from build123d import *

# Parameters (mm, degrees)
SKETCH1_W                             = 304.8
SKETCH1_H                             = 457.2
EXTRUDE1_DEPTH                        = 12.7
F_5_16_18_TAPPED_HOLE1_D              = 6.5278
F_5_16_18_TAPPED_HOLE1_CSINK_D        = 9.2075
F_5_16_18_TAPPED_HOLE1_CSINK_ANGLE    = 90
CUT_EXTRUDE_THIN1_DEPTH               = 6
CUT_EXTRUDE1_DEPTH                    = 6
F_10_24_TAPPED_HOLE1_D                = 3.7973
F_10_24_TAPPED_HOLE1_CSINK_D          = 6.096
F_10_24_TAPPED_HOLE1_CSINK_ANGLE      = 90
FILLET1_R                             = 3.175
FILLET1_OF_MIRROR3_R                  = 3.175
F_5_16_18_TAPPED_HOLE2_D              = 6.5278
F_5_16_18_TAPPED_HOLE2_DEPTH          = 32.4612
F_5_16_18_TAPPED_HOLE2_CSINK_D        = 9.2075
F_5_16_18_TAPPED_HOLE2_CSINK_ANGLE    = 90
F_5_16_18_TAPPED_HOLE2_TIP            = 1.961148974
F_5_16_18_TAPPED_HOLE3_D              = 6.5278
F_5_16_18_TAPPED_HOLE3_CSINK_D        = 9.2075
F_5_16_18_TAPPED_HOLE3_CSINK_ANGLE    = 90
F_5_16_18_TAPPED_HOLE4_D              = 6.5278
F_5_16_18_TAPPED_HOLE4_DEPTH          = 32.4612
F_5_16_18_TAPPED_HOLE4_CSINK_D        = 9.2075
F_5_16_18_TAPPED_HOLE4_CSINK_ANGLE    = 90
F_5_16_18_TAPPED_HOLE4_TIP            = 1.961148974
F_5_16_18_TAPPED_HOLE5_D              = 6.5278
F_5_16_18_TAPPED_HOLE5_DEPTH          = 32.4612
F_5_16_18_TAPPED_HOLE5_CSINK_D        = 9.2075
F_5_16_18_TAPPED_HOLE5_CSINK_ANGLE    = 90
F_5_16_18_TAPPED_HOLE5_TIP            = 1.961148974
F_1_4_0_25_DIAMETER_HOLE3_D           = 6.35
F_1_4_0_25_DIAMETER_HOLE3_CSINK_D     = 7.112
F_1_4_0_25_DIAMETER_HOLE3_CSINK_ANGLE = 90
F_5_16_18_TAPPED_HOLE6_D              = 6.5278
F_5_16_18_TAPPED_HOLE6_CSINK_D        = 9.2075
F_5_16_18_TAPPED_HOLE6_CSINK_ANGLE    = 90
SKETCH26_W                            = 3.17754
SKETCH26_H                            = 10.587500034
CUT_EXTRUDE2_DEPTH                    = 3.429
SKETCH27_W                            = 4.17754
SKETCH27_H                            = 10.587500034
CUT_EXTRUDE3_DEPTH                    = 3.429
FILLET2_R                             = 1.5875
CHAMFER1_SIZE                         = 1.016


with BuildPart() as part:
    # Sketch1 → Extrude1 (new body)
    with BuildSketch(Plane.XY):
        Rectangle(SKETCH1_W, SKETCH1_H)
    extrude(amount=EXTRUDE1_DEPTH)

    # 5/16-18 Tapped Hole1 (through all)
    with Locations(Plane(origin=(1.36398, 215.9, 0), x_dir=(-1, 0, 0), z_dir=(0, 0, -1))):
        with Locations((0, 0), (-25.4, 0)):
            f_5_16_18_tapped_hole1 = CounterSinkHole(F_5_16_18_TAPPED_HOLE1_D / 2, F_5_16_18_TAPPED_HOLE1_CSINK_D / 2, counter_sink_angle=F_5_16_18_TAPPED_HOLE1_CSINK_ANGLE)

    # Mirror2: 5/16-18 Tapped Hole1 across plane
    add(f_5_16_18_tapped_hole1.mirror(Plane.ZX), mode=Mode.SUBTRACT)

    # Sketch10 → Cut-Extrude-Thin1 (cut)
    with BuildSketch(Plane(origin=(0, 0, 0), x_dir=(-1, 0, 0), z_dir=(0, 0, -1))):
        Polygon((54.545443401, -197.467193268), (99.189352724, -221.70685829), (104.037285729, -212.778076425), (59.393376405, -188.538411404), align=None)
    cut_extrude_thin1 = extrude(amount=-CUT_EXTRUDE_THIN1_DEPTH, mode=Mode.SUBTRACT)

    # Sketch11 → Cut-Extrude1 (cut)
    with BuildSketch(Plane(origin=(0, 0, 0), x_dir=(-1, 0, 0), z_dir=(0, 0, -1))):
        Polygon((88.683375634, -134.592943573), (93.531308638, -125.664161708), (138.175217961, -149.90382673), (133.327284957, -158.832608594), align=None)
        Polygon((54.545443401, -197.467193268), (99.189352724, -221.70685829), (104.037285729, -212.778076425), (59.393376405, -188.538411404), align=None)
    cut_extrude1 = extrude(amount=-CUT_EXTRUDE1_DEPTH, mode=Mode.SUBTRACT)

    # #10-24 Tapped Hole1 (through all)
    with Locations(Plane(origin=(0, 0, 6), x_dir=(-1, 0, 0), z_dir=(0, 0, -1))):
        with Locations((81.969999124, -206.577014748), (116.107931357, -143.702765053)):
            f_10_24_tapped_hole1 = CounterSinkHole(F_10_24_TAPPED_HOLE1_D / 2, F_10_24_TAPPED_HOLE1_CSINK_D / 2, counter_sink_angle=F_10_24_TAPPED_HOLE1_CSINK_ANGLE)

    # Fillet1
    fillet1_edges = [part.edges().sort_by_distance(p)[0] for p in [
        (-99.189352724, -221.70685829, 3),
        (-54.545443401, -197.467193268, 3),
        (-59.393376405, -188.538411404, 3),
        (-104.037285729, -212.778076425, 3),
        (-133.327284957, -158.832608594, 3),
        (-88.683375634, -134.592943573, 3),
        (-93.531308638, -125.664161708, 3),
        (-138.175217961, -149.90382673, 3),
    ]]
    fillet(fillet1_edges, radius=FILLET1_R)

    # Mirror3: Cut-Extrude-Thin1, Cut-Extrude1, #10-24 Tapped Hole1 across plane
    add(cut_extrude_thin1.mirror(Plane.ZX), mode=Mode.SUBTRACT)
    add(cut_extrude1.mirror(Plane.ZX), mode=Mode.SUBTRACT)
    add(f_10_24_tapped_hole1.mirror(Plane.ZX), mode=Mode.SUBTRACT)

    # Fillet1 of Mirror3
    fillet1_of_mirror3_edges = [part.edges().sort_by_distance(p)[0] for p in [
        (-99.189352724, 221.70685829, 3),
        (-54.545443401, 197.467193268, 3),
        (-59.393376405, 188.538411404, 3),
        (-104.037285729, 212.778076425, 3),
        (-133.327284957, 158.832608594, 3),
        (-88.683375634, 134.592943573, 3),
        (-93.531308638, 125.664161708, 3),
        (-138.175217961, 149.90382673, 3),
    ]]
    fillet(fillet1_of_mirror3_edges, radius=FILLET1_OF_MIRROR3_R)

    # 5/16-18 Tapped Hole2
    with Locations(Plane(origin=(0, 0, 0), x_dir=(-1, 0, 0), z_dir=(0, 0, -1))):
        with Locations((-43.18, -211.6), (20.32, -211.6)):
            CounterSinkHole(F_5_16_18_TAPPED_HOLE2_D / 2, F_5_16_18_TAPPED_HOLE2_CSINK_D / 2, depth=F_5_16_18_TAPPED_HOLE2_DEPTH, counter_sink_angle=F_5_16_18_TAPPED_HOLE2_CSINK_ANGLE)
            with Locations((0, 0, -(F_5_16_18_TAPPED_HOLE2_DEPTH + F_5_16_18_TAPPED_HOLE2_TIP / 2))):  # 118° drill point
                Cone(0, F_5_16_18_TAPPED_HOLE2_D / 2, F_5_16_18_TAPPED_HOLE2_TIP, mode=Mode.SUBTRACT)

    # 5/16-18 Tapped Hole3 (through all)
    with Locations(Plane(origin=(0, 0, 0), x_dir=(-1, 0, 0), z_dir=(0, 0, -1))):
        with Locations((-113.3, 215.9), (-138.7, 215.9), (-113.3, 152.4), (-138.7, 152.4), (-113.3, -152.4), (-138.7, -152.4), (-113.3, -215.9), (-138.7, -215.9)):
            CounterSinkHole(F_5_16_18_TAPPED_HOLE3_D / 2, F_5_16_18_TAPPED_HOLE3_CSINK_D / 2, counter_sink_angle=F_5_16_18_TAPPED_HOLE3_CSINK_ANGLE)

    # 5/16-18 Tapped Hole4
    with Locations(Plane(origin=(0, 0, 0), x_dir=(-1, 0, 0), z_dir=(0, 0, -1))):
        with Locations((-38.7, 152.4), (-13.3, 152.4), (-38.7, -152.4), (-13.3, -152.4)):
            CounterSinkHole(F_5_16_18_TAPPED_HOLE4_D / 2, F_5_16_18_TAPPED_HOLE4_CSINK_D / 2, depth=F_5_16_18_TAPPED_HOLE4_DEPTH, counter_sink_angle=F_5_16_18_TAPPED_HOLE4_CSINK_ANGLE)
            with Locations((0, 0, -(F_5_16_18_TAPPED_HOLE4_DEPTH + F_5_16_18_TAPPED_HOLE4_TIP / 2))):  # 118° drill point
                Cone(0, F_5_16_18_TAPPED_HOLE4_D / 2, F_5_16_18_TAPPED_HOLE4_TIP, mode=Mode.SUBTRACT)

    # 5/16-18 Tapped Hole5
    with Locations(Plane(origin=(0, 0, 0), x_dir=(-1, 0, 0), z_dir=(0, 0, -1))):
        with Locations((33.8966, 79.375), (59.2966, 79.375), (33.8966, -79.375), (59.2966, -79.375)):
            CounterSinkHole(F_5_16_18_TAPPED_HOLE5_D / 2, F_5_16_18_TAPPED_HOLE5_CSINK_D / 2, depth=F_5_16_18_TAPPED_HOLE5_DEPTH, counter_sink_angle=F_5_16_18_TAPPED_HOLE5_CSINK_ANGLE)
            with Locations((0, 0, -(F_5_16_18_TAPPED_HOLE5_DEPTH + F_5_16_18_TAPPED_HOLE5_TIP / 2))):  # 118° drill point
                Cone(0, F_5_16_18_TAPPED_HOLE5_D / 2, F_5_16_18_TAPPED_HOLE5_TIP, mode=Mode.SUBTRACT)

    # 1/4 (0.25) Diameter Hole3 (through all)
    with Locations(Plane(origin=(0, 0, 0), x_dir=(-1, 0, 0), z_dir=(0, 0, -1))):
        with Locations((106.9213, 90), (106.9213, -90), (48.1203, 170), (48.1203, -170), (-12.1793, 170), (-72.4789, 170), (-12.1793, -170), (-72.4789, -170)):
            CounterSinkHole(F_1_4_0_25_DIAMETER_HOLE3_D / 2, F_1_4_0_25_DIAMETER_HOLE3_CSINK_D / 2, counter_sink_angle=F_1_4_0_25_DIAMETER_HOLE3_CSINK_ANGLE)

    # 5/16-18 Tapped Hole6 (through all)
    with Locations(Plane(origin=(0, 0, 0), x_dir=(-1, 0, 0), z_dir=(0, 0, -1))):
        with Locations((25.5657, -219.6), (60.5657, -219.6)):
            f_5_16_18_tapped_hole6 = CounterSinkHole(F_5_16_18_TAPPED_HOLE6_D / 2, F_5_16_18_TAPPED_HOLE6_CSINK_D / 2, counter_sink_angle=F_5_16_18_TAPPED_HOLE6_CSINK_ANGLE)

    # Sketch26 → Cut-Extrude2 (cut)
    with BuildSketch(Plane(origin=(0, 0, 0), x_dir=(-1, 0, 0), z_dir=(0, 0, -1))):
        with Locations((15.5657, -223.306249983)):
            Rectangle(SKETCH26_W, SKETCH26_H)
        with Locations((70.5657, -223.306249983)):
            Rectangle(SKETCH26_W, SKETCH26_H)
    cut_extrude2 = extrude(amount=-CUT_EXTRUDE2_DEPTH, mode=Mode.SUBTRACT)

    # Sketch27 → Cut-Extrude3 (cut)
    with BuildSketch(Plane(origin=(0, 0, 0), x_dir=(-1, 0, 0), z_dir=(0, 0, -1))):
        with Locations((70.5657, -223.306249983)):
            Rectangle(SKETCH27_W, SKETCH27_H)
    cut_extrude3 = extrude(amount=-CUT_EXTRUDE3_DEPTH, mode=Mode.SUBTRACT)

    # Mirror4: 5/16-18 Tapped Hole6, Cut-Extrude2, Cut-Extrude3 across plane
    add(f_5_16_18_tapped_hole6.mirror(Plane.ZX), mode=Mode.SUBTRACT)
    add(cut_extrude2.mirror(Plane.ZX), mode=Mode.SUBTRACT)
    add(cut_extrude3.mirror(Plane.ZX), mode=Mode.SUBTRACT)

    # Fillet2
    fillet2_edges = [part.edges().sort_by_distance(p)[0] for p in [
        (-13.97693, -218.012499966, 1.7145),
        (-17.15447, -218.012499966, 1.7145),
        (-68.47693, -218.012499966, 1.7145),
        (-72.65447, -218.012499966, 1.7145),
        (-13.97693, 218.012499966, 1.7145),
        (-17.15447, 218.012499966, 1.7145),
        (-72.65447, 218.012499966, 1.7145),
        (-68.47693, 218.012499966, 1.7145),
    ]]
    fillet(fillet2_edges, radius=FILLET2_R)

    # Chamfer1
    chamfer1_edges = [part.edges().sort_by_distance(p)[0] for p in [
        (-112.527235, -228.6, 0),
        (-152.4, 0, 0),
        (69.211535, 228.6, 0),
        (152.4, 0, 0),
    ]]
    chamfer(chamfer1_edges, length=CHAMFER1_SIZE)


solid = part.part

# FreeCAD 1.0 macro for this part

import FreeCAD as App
import Part
import Sketcher

V = App.Vector
Q = App.Units.Quantity


def edges_at(feature, points):
    """Names of the edges that pass closest to the given points."""
    edges = feature.Shape.Edges
    near = lambda p: min(range(len(edges)), key=lambda i: edges[i].distToShape(Part.Vertex(*p))[0])
    return sorted({f"Edge{near(p) + 1}" for p in points})


def add_polygon(sketch, points):
    """Adds a closed chain of lines whose ends are joined by coincident constraints."""
    first, n = sketch.GeometryCount, len(points)
    for a, b in zip(points, points[1:] + points[:1]):
        sketch.addGeometry(Part.LineSegment(App.Vector(*a, 0), App.Vector(*b, 0)), False)
    for i in range(n):
        sketch.addConstraint(Sketcher.Constraint("Coincident", first + i, 2, first + (i + 1) % n, 1))

doc = App.newDocument("Part")
body = doc.addObject("PartDesign::Body", "Body")

sketch1 = body.newObject("Sketcher::SketchObject", "Sketch")
sketch1.AttachmentSupport = (doc.getObject("XY_Plane"), [""])
sketch1.MapMode = "FlatFace"
add_polygon(sketch1, [(-152, 229), (-152, -229), (152, -229), (152, 229)])
sketch1.addConstraint([
    Sketcher.Constraint("Vertical", 0),
    Sketcher.Constraint("Horizontal", 1),
    Sketcher.Constraint("Vertical", 2),
    Sketcher.Constraint("Horizontal", 3),
    Sketcher.Constraint("Symmetric", 0, 2, 2, 2, -1, 1),
    Sketcher.Constraint("DistanceX", 1, 1, 1, 2, Q("12 in")),
    Sketcher.Constraint("DistanceY", 0, 2, 0, 1, Q("18 in")),
])
pad1 = body.newObject("PartDesign::Pad", "Pad")
pad1.Profile = sketch1
pad1.Length = Q("0.5 in")

sketch2 = body.newObject("Sketcher::SketchObject", "Sketch001")
sketch2.AttachmentSupport = (doc.getObject("XY_Plane"), [""])
sketch2.MapMode = "FlatFace"
sketch2.addGeometry([
    Part.Circle(V(1.4, 215.9, 0), V(0, 0, 1), 3.3),
    Part.Circle(V(26.8, 215.9, 0), V(0, 0, 1), 3.3),
], False)
sketch2.addConstraint([
    Sketcher.Constraint("Equal", 0, 1),
    Sketcher.Constraint("Horizontal", 0, 3, 1, 3),
    Sketcher.Constraint("Diameter", 0, Q("0.257 in")),
    Sketcher.Constraint("DistanceX", 0, 3, 1, 3, Q("1 in")),
    Sketcher.Constraint("DistanceY", -1, 1, 0, 3, Q("8.5 in")),
    Sketcher.Constraint("DistanceX", -1, 1, 0, 3, Q("0.0537 in")),
])
doc.recompute()
hole = body.newObject("PartDesign::Hole", "Hole")
hole.Profile = sketch2
hole.ThreadType = "None"
hole.Diameter = Q("0.257 in")
hole.DepthType = "ThroughAll"
hole.HoleCutType = "Countersink"
hole.HoleCutDiameter = Q("0.3625 in")
hole.HoleCutCountersinkAngle = 90
hole.Reversed = True
doc.recompute()

mirrored = body.newObject("PartDesign::Mirrored", "Mirrored")
mirrored.Originals = [hole]
mirrored.MirrorPlane = (doc.getObject("XZ_Plane"), [""])
body.Tip = mirrored

sketch3 = body.newObject("Sketcher::SketchObject", "Sketch002")
sketch3.AttachmentSupport = (doc.getObject("XY_Plane"), [""])
sketch3.MapMode = "FlatFace"
add_polygon(sketch3, [(-55, -197), (-99, -222), (-104, -213), (-59, -189)])
sketch3.addConstraint([
    Sketcher.Constraint("Perpendicular", 0, 1),
    Sketcher.Constraint("Perpendicular", 1, 2),
    Sketcher.Constraint("Perpendicular", 2, 3),
    Sketcher.Constraint("Distance", 0, Q("2 in")),
    Sketcher.Constraint("Distance", 1, Q("0.4 in")),
    Sketcher.Constraint("Angle", 0, Q("-151.5 deg")),
    Sketcher.Constraint("DistanceY", 0, 2, -1, 1, 221.706858),
    Sketcher.Constraint("DistanceX", 0, 2, -1, 1, 99.189353),
])
pocket1 = body.newObject("PartDesign::Pocket", "Pocket")
pocket1.Profile = sketch3
pocket1.Length = 6
pocket1.Reversed = True

sketch4 = body.newObject("Sketcher::SketchObject", "Sketch003")
sketch4.AttachmentSupport = (doc.getObject("XY_Plane"), [""])
sketch4.MapMode = "FlatFace"
add_polygon(sketch4, [(-94, -126), (-89, -135), (-133, -159), (-138, -150)])
add_polygon(sketch4, [(-55, -197), (-99, -222), (-104, -213), (-59, -189)])
sketch4.addConstraint([
    Sketcher.Constraint("Perpendicular", 0, 1),
    Sketcher.Constraint("Perpendicular", 1, 2),
    Sketcher.Constraint("Perpendicular", 2, 3),
    Sketcher.Constraint("Parallel", 3, 4),
    Sketcher.Constraint("Perpendicular", 4, 5),
    Sketcher.Constraint("Perpendicular", 5, 6),
    Sketcher.Constraint("Perpendicular", 6, 7),
    Sketcher.Constraint("Equal", 3, 4),
    Sketcher.Constraint("Equal", 2, 5),
    Sketcher.Constraint("Distance", 1, Q("2 in")),
    Sketcher.Constraint("Distance", 0, Q("0.4 in")),
    Sketcher.Constraint("Angle", 0, Q("-61.5 deg")),
    Sketcher.Constraint("DistanceX", 1, 2, 5, 2, 29.289999),
    Sketcher.Constraint("DistanceY", 1, 2, -1, 1, 158.832609),
    Sketcher.Constraint("DistanceX", 3, 2, -1, 1, 93.531309),
    Sketcher.Constraint("DistanceY", 4, 2, -1, 1, 221.706858),
])
pocket2 = body.newObject("PartDesign::Pocket", "Pocket001")
pocket2.Profile = sketch4
pocket2.Length = 6
pocket2.Reversed = True

sketch5 = body.newObject("Sketcher::SketchObject", "Sketch004")
sketch5.AttachmentSupport = (doc.getObject("XY_Plane"), [""])
sketch5.MapMode = "FlatFace"
sketch5.AttachmentOffset = App.Placement(V(0, 0, 6), App.Rotation())
sketch5.addGeometry([
    Part.Circle(V(-82, -206.6, 0), V(0, 0, 1), 1.9),
    Part.Circle(V(-116.1, -143.7, 0), V(0, 0, 1), 1.9),
], False)
sketch5.addConstraint([
    Sketcher.Constraint("Equal", 0, 1),
    Sketcher.Constraint("Diameter", 0, Q("0.1495 in")),
    Sketcher.Constraint("DistanceX", 0, 3, -1, 1, 81.969999),
    Sketcher.Constraint("DistanceX", 1, 3, -1, 1, 116.107931),
    Sketcher.Constraint("DistanceY", 0, 3, 1, 3, 62.87425),
    Sketcher.Constraint("DistanceY", 0, 3, -1, 1, 206.577015),
])
doc.recompute()
hole2 = body.newObject("PartDesign::Hole", "Hole001")
hole2.Profile = sketch5
hole2.ThreadType = "None"
hole2.Diameter = Q("0.1495 in")
hole2.DepthType = "ThroughAll"
hole2.HoleCutType = "Countersink"
hole2.HoleCutDiameter = Q("0.24 in")
hole2.HoleCutCountersinkAngle = 90
hole2.Reversed = True
doc.recompute()

fillet = body.newObject("PartDesign::Fillet", "Fillet")
fillet.Base = (hole2, edges_at(hole2, [
    (-99.189, -221.707, 3),
    (-54.545, -197.467, 3),
    (-59.393, -188.538, 3),
    (-104.037, -212.778, 3),
    (-133.327, -158.833, 3),
    (-88.683, -134.593, 3),
    (-93.531, -125.664, 3),
    (-138.175, -149.904, 3),
]))
fillet.Radius = Q("0.125 in")
doc.recompute()

mirrored2 = body.newObject("PartDesign::Mirrored", "Mirrored001")
mirrored2.Originals = [pocket1, pocket2, hole2]
mirrored2.MirrorPlane = (doc.getObject("XZ_Plane"), [""])
body.Tip = mirrored2
doc.recompute()

fillet2 = body.newObject("PartDesign::Fillet", "Fillet001")
fillet2.Base = (mirrored2, edges_at(mirrored2, [
    (-99.189, 221.707, 3),
    (-54.545, 197.467, 3),
    (-59.393, 188.538, 3),
    (-104.037, 212.778, 3),
    (-133.327, 158.833, 3),
    (-88.683, 134.593, 3),
    (-93.531, 125.664, 3),
    (-138.175, 149.904, 3),
]))
fillet2.Radius = Q("0.125 in")

sketch6 = body.newObject("Sketcher::SketchObject", "Sketch005")
sketch6.AttachmentSupport = (doc.getObject("XY_Plane"), [""])
sketch6.MapMode = "FlatFace"
sketch6.addGeometry([
    Part.Circle(V(43.2, -211.6, 0), V(0, 0, 1), 3.3),
    Part.Circle(V(-20.3, -211.6, 0), V(0, 0, 1), 3.3),
], False)
sketch6.addConstraint([
    Sketcher.Constraint("Equal", 0, 1),
    Sketcher.Constraint("Horizontal", 0, 3, 1, 3),
    Sketcher.Constraint("Diameter", 0, Q("0.257 in")),
    Sketcher.Constraint("DistanceX", -1, 1, 0, 3, Q("1.7 in")),
    Sketcher.Constraint("DistanceX", 1, 3, -1, 1, Q("0.8 in")),
    Sketcher.Constraint("DistanceY", 0, 3, -1, 1, 211.6),
])
doc.recompute()
hole3 = body.newObject("PartDesign::Hole", "Hole002")
hole3.Profile = sketch6
hole3.ThreadType = "None"
hole3.Diameter = Q("0.257 in")
hole3.DepthType = "Dimension"
hole3.Depth = Q("1.278 in")
hole3.DrillPoint = "Angled"
hole3.DrillPointAngle = 118
hole3.HoleCutType = "Countersink"
hole3.HoleCutDiameter = Q("0.3625 in")
hole3.HoleCutCountersinkAngle = 90
hole3.Reversed = True

sketch7 = body.newObject("Sketcher::SketchObject", "Sketch006")
sketch7.AttachmentSupport = (doc.getObject("XY_Plane"), [""])
sketch7.MapMode = "FlatFace"
sketch7.addGeometry([
    Part.Circle(V(113.3, 215.9, 0), V(0, 0, 1), 3.3),
    Part.Circle(V(138.7, 215.9, 0), V(0, 0, 1), 3.3),
    Part.Circle(V(113.3, 152.4, 0), V(0, 0, 1), 3.3),
    Part.Circle(V(138.7, 152.4, 0), V(0, 0, 1), 3.3),
    Part.Circle(V(113.3, -152.4, 0), V(0, 0, 1), 3.3),
    Part.Circle(V(138.7, -152.4, 0), V(0, 0, 1), 3.3),
    Part.Circle(V(113.3, -215.9, 0), V(0, 0, 1), 3.3),
    Part.Circle(V(138.7, -215.9, 0), V(0, 0, 1), 3.3),
], False)
sketch7.addConstraint([
    Sketcher.Constraint("Equal", 0, 1),
    Sketcher.Constraint("Equal", 1, 2),
    Sketcher.Constraint("Equal", 2, 3),
    Sketcher.Constraint("Equal", 3, 4),
    Sketcher.Constraint("Equal", 4, 5),
    Sketcher.Constraint("Equal", 5, 6),
    Sketcher.Constraint("Equal", 6, 7),
    Sketcher.Constraint("Symmetric", 2, 3, 4, 3, -1),
    Sketcher.Constraint("Symmetric", 3, 3, 5, 3, -1),
    Sketcher.Constraint("Symmetric", 0, 3, 6, 3, -1),
    Sketcher.Constraint("Symmetric", 1, 3, 7, 3, -1),
    Sketcher.Constraint("Horizontal", 0, 3, 1, 3),
    Sketcher.Constraint("Horizontal", 2, 3, 3, 3),
    Sketcher.Constraint("Vertical", 0, 3, 2, 3),
    Sketcher.Constraint("Vertical", 1, 3, 3, 3),
    Sketcher.Constraint("Diameter", 0, Q("0.257 in")),
    Sketcher.Constraint("DistanceY", -1, 1, 2, 3, Q("6 in")),
    Sketcher.Constraint("DistanceX", 0, 3, 1, 3, Q("1 in")),
    Sketcher.Constraint("DistanceY", 6, 3, 0, 3, Q("17 in")),
    Sketcher.Constraint("DistanceX", -1, 1, 0, 3, 113.3),
])
doc.recompute()
hole4 = body.newObject("PartDesign::Hole", "Hole003")
hole4.Profile = sketch7
hole4.ThreadType = "None"
hole4.Diameter = Q("0.257 in")
hole4.DepthType = "ThroughAll"
hole4.HoleCutType = "Countersink"
hole4.HoleCutDiameter = Q("0.3625 in")
hole4.HoleCutCountersinkAngle = 90
hole4.Reversed = True

sketch8 = body.newObject("Sketcher::SketchObject", "Sketch007")
sketch8.AttachmentSupport = (doc.getObject("XY_Plane"), [""])
sketch8.MapMode = "FlatFace"
sketch8.addGeometry([
    Part.Circle(V(38.7, 152.4, 0), V(0, 0, 1), 3.3),
    Part.Circle(V(13.3, 152.4, 0), V(0, 0, 1), 3.3),
    Part.Circle(V(38.7, -152.4, 0), V(0, 0, 1), 3.3),
    Part.Circle(V(13.3, -152.4, 0), V(0, 0, 1), 3.3),
], False)
sketch8.addConstraint([
    Sketcher.Constraint("Equal", 0, 1),
    Sketcher.Constraint("Equal", 1, 2),
    Sketcher.Constraint("Equal", 2, 3),
    Sketcher.Constraint("Symmetric", 0, 3, 2, 3, -1),
    Sketcher.Constraint("Symmetric", 1, 3, 3, 3, -1),
    Sketcher.Constraint("Horizontal", 0, 3, 1, 3),
    Sketcher.Constraint("Diameter", 0, Q("0.257 in")),
    Sketcher.Constraint("DistanceY", -1, 1, 0, 3, Q("6 in")),
    Sketcher.Constraint("DistanceX", 1, 3, 0, 3, Q("1 in")),
    Sketcher.Constraint("DistanceX", -1, 1, 0, 3, 38.7),
])
doc.recompute()
hole5 = body.newObject("PartDesign::Hole", "Hole004")
hole5.Profile = sketch8
hole5.ThreadType = "None"
hole5.Diameter = Q("0.257 in")
hole5.DepthType = "Dimension"
hole5.Depth = Q("1.278 in")
hole5.DrillPoint = "Angled"
hole5.DrillPointAngle = 118
hole5.HoleCutType = "Countersink"
hole5.HoleCutDiameter = Q("0.3625 in")
hole5.HoleCutCountersinkAngle = 90
hole5.Reversed = True

sketch9 = body.newObject("Sketcher::SketchObject", "Sketch008")
sketch9.AttachmentSupport = (doc.getObject("XY_Plane"), [""])
sketch9.MapMode = "FlatFace"
sketch9.addGeometry([
    Part.Circle(V(-33.9, 79.4, 0), V(0, 0, 1), 3.3),
    Part.Circle(V(-59.3, 79.4, 0), V(0, 0, 1), 3.3),
    Part.Circle(V(-33.9, -79.4, 0), V(0, 0, 1), 3.3),
    Part.Circle(V(-59.3, -79.4, 0), V(0, 0, 1), 3.3),
], False)
sketch9.addConstraint([
    Sketcher.Constraint("Equal", 0, 1),
    Sketcher.Constraint("Equal", 1, 2),
    Sketcher.Constraint("Equal", 2, 3),
    Sketcher.Constraint("Symmetric", 0, 3, 2, 3, -1),
    Sketcher.Constraint("Symmetric", 1, 3, 3, 3, -1),
    Sketcher.Constraint("Horizontal", 0, 3, 1, 3),
    Sketcher.Constraint("Diameter", 0, Q("0.257 in")),
    Sketcher.Constraint("DistanceX", 1, 3, 0, 3, Q("1 in")),
    Sketcher.Constraint("DistanceY", 2, 3, 0, 3, Q("6.25 in")),
    Sketcher.Constraint("DistanceX", 0, 3, -1, 1, 33.8966),
])
doc.recompute()
hole6 = body.newObject("PartDesign::Hole", "Hole005")
hole6.Profile = sketch9
hole6.ThreadType = "None"
hole6.Diameter = Q("0.257 in")
hole6.DepthType = "Dimension"
hole6.Depth = Q("1.278 in")
hole6.DrillPoint = "Angled"
hole6.DrillPointAngle = 118
hole6.HoleCutType = "Countersink"
hole6.HoleCutDiameter = Q("0.3625 in")
hole6.HoleCutCountersinkAngle = 90
hole6.Reversed = True

sketch10 = body.newObject("Sketcher::SketchObject", "Sketch009")
sketch10.AttachmentSupport = (doc.getObject("XY_Plane"), [""])
sketch10.MapMode = "FlatFace"
sketch10.addGeometry([
    Part.Circle(V(-106.9, 90, 0), V(0, 0, 1), 3.2),
    Part.Circle(V(-106.9, -90, 0), V(0, 0, 1), 3.2),
    Part.Circle(V(-48.1, 170, 0), V(0, 0, 1), 3.2),
    Part.Circle(V(-48.1, -170, 0), V(0, 0, 1), 3.2),
    Part.Circle(V(12.2, 170, 0), V(0, 0, 1), 3.2),
    Part.Circle(V(72.5, 170, 0), V(0, 0, 1), 3.2),
    Part.Circle(V(12.2, -170, 0), V(0, 0, 1), 3.2),
    Part.Circle(V(72.5, -170, 0), V(0, 0, 1), 3.2),
], False)
sketch10.addConstraint([
    Sketcher.Constraint("Equal", 0, 1),
    Sketcher.Constraint("Equal", 1, 2),
    Sketcher.Constraint("Equal", 2, 3),
    Sketcher.Constraint("Equal", 3, 4),
    Sketcher.Constraint("Equal", 4, 5),
    Sketcher.Constraint("Equal", 5, 6),
    Sketcher.Constraint("Equal", 6, 7),
    Sketcher.Constraint("Symmetric", 0, 3, 1, 3, -1),
    Sketcher.Constraint("Symmetric", 2, 3, 3, 3, -1),
    Sketcher.Constraint("Symmetric", 4, 3, 6, 3, -1),
    Sketcher.Constraint("Symmetric", 5, 3, 7, 3, -1),
    Sketcher.Constraint("Horizontal", 2, 3, 4, 3),
    Sketcher.Constraint("Horizontal", 4, 3, 5, 3),
    Sketcher.Constraint("Diameter", 0, Q("0.25 in")),
    Sketcher.Constraint("DistanceX", 0, 3, 2, 3, Q("2.315 in")),
    Sketcher.Constraint("DistanceX", 2, 3, 4, 3, Q("2.374 in")),
    Sketcher.Constraint("DistanceX", 4, 3, 5, 3, Q("2.374 in")),
    Sketcher.Constraint("DistanceX", 0, 3, -1, 1, Q("4.2095 in")),
    Sketcher.Constraint("DistanceY", -1, 1, 0, 3, 90.0),
    Sketcher.Constraint("DistanceY", -1, 1, 2, 3, 170.0),
])
doc.recompute()
hole7 = body.newObject("PartDesign::Hole", "Hole006")
hole7.Profile = sketch10
hole7.ThreadType = "None"
hole7.Diameter = Q("0.25 in")
hole7.DepthType = "ThroughAll"
hole7.HoleCutType = "Countersink"
hole7.HoleCutDiameter = Q("0.28 in")
hole7.HoleCutCountersinkAngle = 90
hole7.Reversed = True

sketch11 = body.newObject("Sketcher::SketchObject", "Sketch010")
sketch11.AttachmentSupport = (doc.getObject("XY_Plane"), [""])
sketch11.MapMode = "FlatFace"
sketch11.addGeometry([
    Part.Circle(V(-25.6, -219.6, 0), V(0, 0, 1), 3.3),
    Part.Circle(V(-60.6, -219.6, 0), V(0, 0, 1), 3.3),
], False)
sketch11.addConstraint([
    Sketcher.Constraint("Equal", 0, 1),
    Sketcher.Constraint("Horizontal", 0, 3, 1, 3),
    Sketcher.Constraint("Diameter", 0, Q("0.257 in")),
    Sketcher.Constraint("DistanceX", 0, 3, -1, 1, 25.5657),
    Sketcher.Constraint("DistanceY", 0, 3, -1, 1, 219.6),
    Sketcher.Constraint("DistanceX", 1, 3, -1, 1, 60.5657),
])
doc.recompute()
hole8 = body.newObject("PartDesign::Hole", "Hole007")
hole8.Profile = sketch11
hole8.ThreadType = "None"
hole8.Diameter = Q("0.257 in")
hole8.DepthType = "ThroughAll"
hole8.HoleCutType = "Countersink"
hole8.HoleCutDiameter = Q("0.3625 in")
hole8.HoleCutCountersinkAngle = 90
hole8.Reversed = True

sketch12 = body.newObject("Sketcher::SketchObject", "Sketch011")
sketch12.AttachmentSupport = (doc.getObject("XY_Plane"), [""])
sketch12.MapMode = "FlatFace"
add_polygon(sketch12, [(-14, -218), (-14, -228.6), (-17.2, -228.6), (-17.2, -218)])
add_polygon(sketch12, [(-69, -218), (-69, -228.6), (-72.2, -228.6), (-72.2, -218)])
sketch12.addConstraint([
    Sketcher.Constraint("Vertical", 0),
    Sketcher.Constraint("Horizontal", 1),
    Sketcher.Constraint("Vertical", 2),
    Sketcher.Constraint("Horizontal", 3),
    Sketcher.Constraint("Vertical", 4),
    Sketcher.Constraint("Horizontal", 5),
    Sketcher.Constraint("Vertical", 6),
    Sketcher.Constraint("Horizontal", 7),
    Sketcher.Constraint("Horizontal", 1, 2, 4, 2),
    Sketcher.Constraint("Horizontal", 3, 2, 6, 2),
    Sketcher.Constraint("Equal", 3, 5),
    Sketcher.Constraint("DistanceY", 0, 2, -1, 1, Q("9 in")),
    Sketcher.Constraint("DistanceX", 1, 2, 1, 1, Q("0.1251 in")),
    Sketcher.Constraint("DistanceY", 0, 2, 0, 1, 10.5875),
    Sketcher.Constraint("DistanceX", 4, 2, 0, 2, 55.0),
    Sketcher.Constraint("DistanceX", 0, 2, -1, 1, 13.97693),
])
pocket3 = body.newObject("PartDesign::Pocket", "Pocket002")
pocket3.Profile = sketch12
pocket3.Length = Q("0.135 in")
pocket3.Reversed = True

sketch13 = body.newObject("Sketcher::SketchObject", "Sketch012")
sketch13.AttachmentSupport = (doc.getObject("XY_Plane"), [""])
sketch13.MapMode = "FlatFace"
add_polygon(sketch13, [(-68.5, -218), (-68.5, -228.6), (-72.7, -228.6), (-72.7, -218)])
sketch13.addConstraint([
    Sketcher.Constraint("Vertical", 0),
    Sketcher.Constraint("Horizontal", 1),
    Sketcher.Constraint("Vertical", 2),
    Sketcher.Constraint("Horizontal", 3),
    Sketcher.Constraint("DistanceY", 0, 2, -1, 1, Q("9 in")),
    Sketcher.Constraint("DistanceY", 0, 2, 0, 1, 10.5875),
    Sketcher.Constraint("DistanceX", 1, 2, 1, 1, 4.17754),
    Sketcher.Constraint("DistanceX", 0, 2, -1, 1, 68.47693),
])
pocket4 = body.newObject("PartDesign::Pocket", "Pocket003")
pocket4.Profile = sketch13
pocket4.Length = Q("0.135 in")
pocket4.Reversed = True
doc.recompute()

mirrored3 = body.newObject("PartDesign::Mirrored", "Mirrored002")
mirrored3.Originals = [hole8, pocket3, pocket4]
mirrored3.MirrorPlane = (doc.getObject("XZ_Plane"), [""])
body.Tip = mirrored3
doc.recompute()

fillet3 = body.newObject("PartDesign::Fillet", "Fillet002")
fillet3.Base = (mirrored3, edges_at(mirrored3, [
    (-13.977, -218.012, 1.714),
    (-17.154, -218.012, 1.714),
    (-68.477, -218.012, 1.714),
    (-72.654, -218.012, 1.714),
    (-13.977, 218.012, 1.714),
    (-17.154, 218.012, 1.714),
    (-72.654, 218.012, 1.714),
    (-68.477, 218.012, 1.714),
]))
fillet3.Radius = Q("0.0625 in")
doc.recompute()

chamfer = body.newObject("PartDesign::Chamfer", "Chamfer")
chamfer.Base = (fillet3, edges_at(fillet3, [
    (-112.527, -228.6, 0),
    (-152.4, 0, 0),
    (69.212, 228.6, 0),
    (152.4, 0, 0),
]))
chamfer.Size = Q("0.04 in")

doc.recompute()
